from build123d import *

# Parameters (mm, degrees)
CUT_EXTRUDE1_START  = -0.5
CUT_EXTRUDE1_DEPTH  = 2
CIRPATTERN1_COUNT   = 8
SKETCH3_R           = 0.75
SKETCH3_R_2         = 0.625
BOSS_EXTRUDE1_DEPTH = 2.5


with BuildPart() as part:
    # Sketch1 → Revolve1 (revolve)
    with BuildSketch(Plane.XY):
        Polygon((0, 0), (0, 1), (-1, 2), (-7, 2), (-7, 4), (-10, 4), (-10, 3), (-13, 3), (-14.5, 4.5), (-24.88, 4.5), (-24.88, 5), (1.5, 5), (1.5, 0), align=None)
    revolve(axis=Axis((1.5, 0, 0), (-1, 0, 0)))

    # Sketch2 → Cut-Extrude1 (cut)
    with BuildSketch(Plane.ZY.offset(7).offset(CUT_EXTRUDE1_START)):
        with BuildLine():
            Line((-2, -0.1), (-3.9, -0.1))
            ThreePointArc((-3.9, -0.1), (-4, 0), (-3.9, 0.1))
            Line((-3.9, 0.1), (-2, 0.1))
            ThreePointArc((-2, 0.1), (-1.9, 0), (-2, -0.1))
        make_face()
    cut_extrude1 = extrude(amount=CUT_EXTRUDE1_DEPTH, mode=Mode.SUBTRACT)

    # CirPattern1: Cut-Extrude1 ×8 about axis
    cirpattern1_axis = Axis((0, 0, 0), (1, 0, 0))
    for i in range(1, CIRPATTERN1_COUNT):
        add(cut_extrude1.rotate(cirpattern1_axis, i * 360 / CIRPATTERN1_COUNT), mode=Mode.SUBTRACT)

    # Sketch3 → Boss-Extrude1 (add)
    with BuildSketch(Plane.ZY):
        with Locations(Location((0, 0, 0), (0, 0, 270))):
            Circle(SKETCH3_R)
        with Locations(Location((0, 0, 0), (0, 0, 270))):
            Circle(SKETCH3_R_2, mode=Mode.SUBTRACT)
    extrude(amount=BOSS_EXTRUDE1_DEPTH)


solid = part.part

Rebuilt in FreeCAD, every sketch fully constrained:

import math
import FreeCAD as App
import Part
import Sketcher

V = App.Vector
Q = App.Units.Quantity


def add_polygon(sketch, points):
    """Adds a closed chain of lines whose ends are joined by coincident constraints."""
    first, n = sketch.GeometryCount, len(points)
    for a, b in zip(points, points[1:] + points[:1]):
        sketch.addGeometry(Part.LineSegment(App.Vector(*a, 0), App.Vector(*b, 0)), False)
    for i in range(n):
        sketch.addConstraint(Sketcher.Constraint("Coincident", first + i, 2, first + (i + 1) % n, 1))

doc = App.newDocument("Part")
params = doc.addObject("Spreadsheet::Sheet", "Params")
for row, (alias, value) in enumerate([
    ("sketch1_width", "3 mm"),
    ("sketch1_width2", "6 mm"),
    ("sketch1_height", "1 mm"),
    ("sketch1_height2", "5 mm"),
    ("sketch1_height3", "2 mm"),
    ("revolution_angle", "360 deg"),
    ("sketch2_radius", "0.1 mm"),
    ("sketch2_height", "1.9 mm"),
    ("pocket1_length", "2 mm"),
    ("sketch3_diameter", "1.5 mm"),
    ("sketch3_diameter2", "1.25 mm"),
    ("pad1_length", "2.5 mm"),
], start=1):
    params.set(f"A{row}", alias)
    params.set(f"B{row}", "=" + value)
    params.setAlias(f"B{row}", alias)

body = doc.addObject("PartDesign::Body", "Body")

sketch1 = body.newObject("Sketcher::SketchObject", "Sketch")
sketch1.AttachmentSupport = (doc.getObject("XY_Plane"), [""])
sketch1.MapMode = "FlatFace"
add_polygon(sketch1, [(0, 1), (0, 0), (1.5, 0), (1.5, 5), (-24.9, 5), (-24.9, 4.5), (-14.5, 4.5), (-13, 3), (-10, 3), (-10, 4), (-7, 4), (-7, 2), (-1, 2)])
sketch1.addConstraint([
    Sketcher.Constraint("Vertical", 0),
    Sketcher.Constraint("Horizontal", 1),
    Sketcher.Constraint("Vertical", 2),
    Sketcher.Constraint("Horizontal", 3),
    Sketcher.Constraint("Vertical", 4),
    Sketcher.Constraint("Horizontal", 5),
    Sketcher.Constraint("Horizontal", 7),
    Sketcher.Constraint("Vertical", 8),
    Sketcher.Constraint("Horizontal", 9),
    Sketcher.Constraint("Vertical", 10),
    Sketcher.Constraint("Horizontal", 11),
    Sketcher.Constraint("Coincident", 0, 2, -1, 1),
    Sketcher.Constraint("Parallel", 6, 12),
    Sketcher.Constraint("Equal", 7, 9),
    Sketcher.Constraint("Equal", 0, 8),
    Sketcher.Constraint("DistanceX", 7, 1, 7, 2, 3.0),
    Sketcher.Constraint("DistanceX", 11, 1, 11, 2, 6.0),
    Sketcher.Constraint("DistanceY", 0, 2, 0, 1, 1.0),
    Sketcher.Constraint("DistanceY", 2, 1, 2, 2, 5.0),
    Sketcher.Constraint("DistanceY", 10, 2, 10, 1, 2.0),
    Sketcher.Constraint("Angle", 6, Q("-45 deg")),
    Sketcher.Constraint("DistanceX", 1, 1, 1, 2, 1.5),
    Sketcher.Constraint("DistanceY", 4, 2, 4, 1, 0.5),
    Sketcher.Constraint("DistanceX", 6, 2, -1, 1, 13.0),
    Sketcher.Constraint("DistanceX", 3, 2, 3, 1, 26.38),
])
sketch1.setExpression("Constraints[28]", "Params.sketch1_width")
sketch1.setExpression("Constraints[29]", "Params.sketch1_width2")
sketch1.setExpression("Constraints[30]", "Params.sketch1_height")
sketch1.setExpression("Constraints[31]", "Params.sketch1_height2")
sketch1.setExpression("Constraints[32]", "Params.sketch1_height3")
revolution = body.newObject("PartDesign::Revolution", "Revolution")
revolution.Profile = sketch1
revolution.ReferenceAxis = (sketch1, ["H_Axis"])
revolution.setExpression("Angle", "Params.revolution_angle")

sketch2 = body.newObject("Sketcher::SketchObject", "Sketch001")
sketch2.AttachmentSupport = (doc.getObject("YZ_Plane"), [""])
sketch2.MapMode = "FlatFace"
sketch2.AttachmentOffset = App.Placement(V(0, 0, -6.5), App.Rotation())
sketch2.addGeometry([
    Part.LineSegment(V(-0.1, -3.9, 0), V(-0.1, -2, 0)),
    Part.ArcOfCircle(Part.Circle(V(0, -2, 0), V(0, 0, 1), 0.1), math.radians(0), math.radians(180)),
    Part.LineSegment(V(0.1, -2, 0), V(0.1, -3.9, 0)),
    Part.ArcOfCircle(Part.Circle(V(0, -3.9, 0), V(0, 0, 1), 0.1), math.radians(180), math.radians(360)),
], False)
sketch2.addConstraint([
    Sketcher.Constraint("Tangent", 0, 2, 1, 2),
    Sketcher.Constraint("Tangent", 1, 1, 2, 1),
    Sketcher.Constraint("Tangent", 2, 2, 3, 2),
    Sketcher.Constraint("Tangent", 3, 1, 0, 1),
    Sketcher.Constraint("Vertical", 0),
    Sketcher.Constraint("Vertical", 2),
    Sketcher.Constraint("PointOnObject", 1, 3, -2),
    Sketcher.Constraint("Radius", 1, 0.1),
    Sketcher.Constraint("DistanceY", 0, 1, 0, 2, 1.9),
    Sketcher.Constraint("DistanceY", 1, 3, -1, 1, 2.0),
])
sketch2.setExpression("Constraints[7]", "Params.sketch2_radius")
sketch2.setExpression("Constraints[8]", "Params.sketch2_height")
pocket1 = body.newObject("PartDesign::Pocket", "Pocket")
pocket1.Profile = sketch2
pocket1.setExpression("Length", "Params.pocket1_length")
doc.recompute()

polarpattern = body.newObject("PartDesign::PolarPattern", "PolarPattern")
polarpattern.Originals = [pocket1]
polarpattern.Axis = (doc.getObject("X_Axis"), [""])
polarpattern.Angle = 360
polarpattern.Occurrences = 8
body.Tip = polarpattern

sketch3 = body.newObject("Sketcher::SketchObject", "Sketch002")
sketch3.AttachmentSupport = (doc.getObject("YZ_Plane"), [""])
sketch3.MapMode = "FlatFace"
sketch3.addGeometry([
    Part.Circle(V(0, 0, 0), V(0, 0, 1), 0.8),
    Part.Circle(V(0, 0, 0), V(0, 0, 1), 0.6),
], False)
sketch3.addConstraint([
    Sketcher.Constraint("Coincident", 0, 3, -1, 1),
    Sketcher.Constraint("Coincident", 1, 3, -1, 1),
    Sketcher.Constraint("Diameter", 0, 1.5),
    Sketcher.Constraint("Diameter", 1, 1.25),
])
sketch3.setExpression("Constraints[2]", "Params.sketch3_diameter")
sketch3.setExpression("Constraints[3]", "Params.sketch3_diameter2")
pad1 = body.newObject("PartDesign::Pad", "Pad")
pad1.Profile = sketch3
pad1.setExpression("Length", "Params.pad1_length")
pad1.Reversed = True

doc.recompute()
